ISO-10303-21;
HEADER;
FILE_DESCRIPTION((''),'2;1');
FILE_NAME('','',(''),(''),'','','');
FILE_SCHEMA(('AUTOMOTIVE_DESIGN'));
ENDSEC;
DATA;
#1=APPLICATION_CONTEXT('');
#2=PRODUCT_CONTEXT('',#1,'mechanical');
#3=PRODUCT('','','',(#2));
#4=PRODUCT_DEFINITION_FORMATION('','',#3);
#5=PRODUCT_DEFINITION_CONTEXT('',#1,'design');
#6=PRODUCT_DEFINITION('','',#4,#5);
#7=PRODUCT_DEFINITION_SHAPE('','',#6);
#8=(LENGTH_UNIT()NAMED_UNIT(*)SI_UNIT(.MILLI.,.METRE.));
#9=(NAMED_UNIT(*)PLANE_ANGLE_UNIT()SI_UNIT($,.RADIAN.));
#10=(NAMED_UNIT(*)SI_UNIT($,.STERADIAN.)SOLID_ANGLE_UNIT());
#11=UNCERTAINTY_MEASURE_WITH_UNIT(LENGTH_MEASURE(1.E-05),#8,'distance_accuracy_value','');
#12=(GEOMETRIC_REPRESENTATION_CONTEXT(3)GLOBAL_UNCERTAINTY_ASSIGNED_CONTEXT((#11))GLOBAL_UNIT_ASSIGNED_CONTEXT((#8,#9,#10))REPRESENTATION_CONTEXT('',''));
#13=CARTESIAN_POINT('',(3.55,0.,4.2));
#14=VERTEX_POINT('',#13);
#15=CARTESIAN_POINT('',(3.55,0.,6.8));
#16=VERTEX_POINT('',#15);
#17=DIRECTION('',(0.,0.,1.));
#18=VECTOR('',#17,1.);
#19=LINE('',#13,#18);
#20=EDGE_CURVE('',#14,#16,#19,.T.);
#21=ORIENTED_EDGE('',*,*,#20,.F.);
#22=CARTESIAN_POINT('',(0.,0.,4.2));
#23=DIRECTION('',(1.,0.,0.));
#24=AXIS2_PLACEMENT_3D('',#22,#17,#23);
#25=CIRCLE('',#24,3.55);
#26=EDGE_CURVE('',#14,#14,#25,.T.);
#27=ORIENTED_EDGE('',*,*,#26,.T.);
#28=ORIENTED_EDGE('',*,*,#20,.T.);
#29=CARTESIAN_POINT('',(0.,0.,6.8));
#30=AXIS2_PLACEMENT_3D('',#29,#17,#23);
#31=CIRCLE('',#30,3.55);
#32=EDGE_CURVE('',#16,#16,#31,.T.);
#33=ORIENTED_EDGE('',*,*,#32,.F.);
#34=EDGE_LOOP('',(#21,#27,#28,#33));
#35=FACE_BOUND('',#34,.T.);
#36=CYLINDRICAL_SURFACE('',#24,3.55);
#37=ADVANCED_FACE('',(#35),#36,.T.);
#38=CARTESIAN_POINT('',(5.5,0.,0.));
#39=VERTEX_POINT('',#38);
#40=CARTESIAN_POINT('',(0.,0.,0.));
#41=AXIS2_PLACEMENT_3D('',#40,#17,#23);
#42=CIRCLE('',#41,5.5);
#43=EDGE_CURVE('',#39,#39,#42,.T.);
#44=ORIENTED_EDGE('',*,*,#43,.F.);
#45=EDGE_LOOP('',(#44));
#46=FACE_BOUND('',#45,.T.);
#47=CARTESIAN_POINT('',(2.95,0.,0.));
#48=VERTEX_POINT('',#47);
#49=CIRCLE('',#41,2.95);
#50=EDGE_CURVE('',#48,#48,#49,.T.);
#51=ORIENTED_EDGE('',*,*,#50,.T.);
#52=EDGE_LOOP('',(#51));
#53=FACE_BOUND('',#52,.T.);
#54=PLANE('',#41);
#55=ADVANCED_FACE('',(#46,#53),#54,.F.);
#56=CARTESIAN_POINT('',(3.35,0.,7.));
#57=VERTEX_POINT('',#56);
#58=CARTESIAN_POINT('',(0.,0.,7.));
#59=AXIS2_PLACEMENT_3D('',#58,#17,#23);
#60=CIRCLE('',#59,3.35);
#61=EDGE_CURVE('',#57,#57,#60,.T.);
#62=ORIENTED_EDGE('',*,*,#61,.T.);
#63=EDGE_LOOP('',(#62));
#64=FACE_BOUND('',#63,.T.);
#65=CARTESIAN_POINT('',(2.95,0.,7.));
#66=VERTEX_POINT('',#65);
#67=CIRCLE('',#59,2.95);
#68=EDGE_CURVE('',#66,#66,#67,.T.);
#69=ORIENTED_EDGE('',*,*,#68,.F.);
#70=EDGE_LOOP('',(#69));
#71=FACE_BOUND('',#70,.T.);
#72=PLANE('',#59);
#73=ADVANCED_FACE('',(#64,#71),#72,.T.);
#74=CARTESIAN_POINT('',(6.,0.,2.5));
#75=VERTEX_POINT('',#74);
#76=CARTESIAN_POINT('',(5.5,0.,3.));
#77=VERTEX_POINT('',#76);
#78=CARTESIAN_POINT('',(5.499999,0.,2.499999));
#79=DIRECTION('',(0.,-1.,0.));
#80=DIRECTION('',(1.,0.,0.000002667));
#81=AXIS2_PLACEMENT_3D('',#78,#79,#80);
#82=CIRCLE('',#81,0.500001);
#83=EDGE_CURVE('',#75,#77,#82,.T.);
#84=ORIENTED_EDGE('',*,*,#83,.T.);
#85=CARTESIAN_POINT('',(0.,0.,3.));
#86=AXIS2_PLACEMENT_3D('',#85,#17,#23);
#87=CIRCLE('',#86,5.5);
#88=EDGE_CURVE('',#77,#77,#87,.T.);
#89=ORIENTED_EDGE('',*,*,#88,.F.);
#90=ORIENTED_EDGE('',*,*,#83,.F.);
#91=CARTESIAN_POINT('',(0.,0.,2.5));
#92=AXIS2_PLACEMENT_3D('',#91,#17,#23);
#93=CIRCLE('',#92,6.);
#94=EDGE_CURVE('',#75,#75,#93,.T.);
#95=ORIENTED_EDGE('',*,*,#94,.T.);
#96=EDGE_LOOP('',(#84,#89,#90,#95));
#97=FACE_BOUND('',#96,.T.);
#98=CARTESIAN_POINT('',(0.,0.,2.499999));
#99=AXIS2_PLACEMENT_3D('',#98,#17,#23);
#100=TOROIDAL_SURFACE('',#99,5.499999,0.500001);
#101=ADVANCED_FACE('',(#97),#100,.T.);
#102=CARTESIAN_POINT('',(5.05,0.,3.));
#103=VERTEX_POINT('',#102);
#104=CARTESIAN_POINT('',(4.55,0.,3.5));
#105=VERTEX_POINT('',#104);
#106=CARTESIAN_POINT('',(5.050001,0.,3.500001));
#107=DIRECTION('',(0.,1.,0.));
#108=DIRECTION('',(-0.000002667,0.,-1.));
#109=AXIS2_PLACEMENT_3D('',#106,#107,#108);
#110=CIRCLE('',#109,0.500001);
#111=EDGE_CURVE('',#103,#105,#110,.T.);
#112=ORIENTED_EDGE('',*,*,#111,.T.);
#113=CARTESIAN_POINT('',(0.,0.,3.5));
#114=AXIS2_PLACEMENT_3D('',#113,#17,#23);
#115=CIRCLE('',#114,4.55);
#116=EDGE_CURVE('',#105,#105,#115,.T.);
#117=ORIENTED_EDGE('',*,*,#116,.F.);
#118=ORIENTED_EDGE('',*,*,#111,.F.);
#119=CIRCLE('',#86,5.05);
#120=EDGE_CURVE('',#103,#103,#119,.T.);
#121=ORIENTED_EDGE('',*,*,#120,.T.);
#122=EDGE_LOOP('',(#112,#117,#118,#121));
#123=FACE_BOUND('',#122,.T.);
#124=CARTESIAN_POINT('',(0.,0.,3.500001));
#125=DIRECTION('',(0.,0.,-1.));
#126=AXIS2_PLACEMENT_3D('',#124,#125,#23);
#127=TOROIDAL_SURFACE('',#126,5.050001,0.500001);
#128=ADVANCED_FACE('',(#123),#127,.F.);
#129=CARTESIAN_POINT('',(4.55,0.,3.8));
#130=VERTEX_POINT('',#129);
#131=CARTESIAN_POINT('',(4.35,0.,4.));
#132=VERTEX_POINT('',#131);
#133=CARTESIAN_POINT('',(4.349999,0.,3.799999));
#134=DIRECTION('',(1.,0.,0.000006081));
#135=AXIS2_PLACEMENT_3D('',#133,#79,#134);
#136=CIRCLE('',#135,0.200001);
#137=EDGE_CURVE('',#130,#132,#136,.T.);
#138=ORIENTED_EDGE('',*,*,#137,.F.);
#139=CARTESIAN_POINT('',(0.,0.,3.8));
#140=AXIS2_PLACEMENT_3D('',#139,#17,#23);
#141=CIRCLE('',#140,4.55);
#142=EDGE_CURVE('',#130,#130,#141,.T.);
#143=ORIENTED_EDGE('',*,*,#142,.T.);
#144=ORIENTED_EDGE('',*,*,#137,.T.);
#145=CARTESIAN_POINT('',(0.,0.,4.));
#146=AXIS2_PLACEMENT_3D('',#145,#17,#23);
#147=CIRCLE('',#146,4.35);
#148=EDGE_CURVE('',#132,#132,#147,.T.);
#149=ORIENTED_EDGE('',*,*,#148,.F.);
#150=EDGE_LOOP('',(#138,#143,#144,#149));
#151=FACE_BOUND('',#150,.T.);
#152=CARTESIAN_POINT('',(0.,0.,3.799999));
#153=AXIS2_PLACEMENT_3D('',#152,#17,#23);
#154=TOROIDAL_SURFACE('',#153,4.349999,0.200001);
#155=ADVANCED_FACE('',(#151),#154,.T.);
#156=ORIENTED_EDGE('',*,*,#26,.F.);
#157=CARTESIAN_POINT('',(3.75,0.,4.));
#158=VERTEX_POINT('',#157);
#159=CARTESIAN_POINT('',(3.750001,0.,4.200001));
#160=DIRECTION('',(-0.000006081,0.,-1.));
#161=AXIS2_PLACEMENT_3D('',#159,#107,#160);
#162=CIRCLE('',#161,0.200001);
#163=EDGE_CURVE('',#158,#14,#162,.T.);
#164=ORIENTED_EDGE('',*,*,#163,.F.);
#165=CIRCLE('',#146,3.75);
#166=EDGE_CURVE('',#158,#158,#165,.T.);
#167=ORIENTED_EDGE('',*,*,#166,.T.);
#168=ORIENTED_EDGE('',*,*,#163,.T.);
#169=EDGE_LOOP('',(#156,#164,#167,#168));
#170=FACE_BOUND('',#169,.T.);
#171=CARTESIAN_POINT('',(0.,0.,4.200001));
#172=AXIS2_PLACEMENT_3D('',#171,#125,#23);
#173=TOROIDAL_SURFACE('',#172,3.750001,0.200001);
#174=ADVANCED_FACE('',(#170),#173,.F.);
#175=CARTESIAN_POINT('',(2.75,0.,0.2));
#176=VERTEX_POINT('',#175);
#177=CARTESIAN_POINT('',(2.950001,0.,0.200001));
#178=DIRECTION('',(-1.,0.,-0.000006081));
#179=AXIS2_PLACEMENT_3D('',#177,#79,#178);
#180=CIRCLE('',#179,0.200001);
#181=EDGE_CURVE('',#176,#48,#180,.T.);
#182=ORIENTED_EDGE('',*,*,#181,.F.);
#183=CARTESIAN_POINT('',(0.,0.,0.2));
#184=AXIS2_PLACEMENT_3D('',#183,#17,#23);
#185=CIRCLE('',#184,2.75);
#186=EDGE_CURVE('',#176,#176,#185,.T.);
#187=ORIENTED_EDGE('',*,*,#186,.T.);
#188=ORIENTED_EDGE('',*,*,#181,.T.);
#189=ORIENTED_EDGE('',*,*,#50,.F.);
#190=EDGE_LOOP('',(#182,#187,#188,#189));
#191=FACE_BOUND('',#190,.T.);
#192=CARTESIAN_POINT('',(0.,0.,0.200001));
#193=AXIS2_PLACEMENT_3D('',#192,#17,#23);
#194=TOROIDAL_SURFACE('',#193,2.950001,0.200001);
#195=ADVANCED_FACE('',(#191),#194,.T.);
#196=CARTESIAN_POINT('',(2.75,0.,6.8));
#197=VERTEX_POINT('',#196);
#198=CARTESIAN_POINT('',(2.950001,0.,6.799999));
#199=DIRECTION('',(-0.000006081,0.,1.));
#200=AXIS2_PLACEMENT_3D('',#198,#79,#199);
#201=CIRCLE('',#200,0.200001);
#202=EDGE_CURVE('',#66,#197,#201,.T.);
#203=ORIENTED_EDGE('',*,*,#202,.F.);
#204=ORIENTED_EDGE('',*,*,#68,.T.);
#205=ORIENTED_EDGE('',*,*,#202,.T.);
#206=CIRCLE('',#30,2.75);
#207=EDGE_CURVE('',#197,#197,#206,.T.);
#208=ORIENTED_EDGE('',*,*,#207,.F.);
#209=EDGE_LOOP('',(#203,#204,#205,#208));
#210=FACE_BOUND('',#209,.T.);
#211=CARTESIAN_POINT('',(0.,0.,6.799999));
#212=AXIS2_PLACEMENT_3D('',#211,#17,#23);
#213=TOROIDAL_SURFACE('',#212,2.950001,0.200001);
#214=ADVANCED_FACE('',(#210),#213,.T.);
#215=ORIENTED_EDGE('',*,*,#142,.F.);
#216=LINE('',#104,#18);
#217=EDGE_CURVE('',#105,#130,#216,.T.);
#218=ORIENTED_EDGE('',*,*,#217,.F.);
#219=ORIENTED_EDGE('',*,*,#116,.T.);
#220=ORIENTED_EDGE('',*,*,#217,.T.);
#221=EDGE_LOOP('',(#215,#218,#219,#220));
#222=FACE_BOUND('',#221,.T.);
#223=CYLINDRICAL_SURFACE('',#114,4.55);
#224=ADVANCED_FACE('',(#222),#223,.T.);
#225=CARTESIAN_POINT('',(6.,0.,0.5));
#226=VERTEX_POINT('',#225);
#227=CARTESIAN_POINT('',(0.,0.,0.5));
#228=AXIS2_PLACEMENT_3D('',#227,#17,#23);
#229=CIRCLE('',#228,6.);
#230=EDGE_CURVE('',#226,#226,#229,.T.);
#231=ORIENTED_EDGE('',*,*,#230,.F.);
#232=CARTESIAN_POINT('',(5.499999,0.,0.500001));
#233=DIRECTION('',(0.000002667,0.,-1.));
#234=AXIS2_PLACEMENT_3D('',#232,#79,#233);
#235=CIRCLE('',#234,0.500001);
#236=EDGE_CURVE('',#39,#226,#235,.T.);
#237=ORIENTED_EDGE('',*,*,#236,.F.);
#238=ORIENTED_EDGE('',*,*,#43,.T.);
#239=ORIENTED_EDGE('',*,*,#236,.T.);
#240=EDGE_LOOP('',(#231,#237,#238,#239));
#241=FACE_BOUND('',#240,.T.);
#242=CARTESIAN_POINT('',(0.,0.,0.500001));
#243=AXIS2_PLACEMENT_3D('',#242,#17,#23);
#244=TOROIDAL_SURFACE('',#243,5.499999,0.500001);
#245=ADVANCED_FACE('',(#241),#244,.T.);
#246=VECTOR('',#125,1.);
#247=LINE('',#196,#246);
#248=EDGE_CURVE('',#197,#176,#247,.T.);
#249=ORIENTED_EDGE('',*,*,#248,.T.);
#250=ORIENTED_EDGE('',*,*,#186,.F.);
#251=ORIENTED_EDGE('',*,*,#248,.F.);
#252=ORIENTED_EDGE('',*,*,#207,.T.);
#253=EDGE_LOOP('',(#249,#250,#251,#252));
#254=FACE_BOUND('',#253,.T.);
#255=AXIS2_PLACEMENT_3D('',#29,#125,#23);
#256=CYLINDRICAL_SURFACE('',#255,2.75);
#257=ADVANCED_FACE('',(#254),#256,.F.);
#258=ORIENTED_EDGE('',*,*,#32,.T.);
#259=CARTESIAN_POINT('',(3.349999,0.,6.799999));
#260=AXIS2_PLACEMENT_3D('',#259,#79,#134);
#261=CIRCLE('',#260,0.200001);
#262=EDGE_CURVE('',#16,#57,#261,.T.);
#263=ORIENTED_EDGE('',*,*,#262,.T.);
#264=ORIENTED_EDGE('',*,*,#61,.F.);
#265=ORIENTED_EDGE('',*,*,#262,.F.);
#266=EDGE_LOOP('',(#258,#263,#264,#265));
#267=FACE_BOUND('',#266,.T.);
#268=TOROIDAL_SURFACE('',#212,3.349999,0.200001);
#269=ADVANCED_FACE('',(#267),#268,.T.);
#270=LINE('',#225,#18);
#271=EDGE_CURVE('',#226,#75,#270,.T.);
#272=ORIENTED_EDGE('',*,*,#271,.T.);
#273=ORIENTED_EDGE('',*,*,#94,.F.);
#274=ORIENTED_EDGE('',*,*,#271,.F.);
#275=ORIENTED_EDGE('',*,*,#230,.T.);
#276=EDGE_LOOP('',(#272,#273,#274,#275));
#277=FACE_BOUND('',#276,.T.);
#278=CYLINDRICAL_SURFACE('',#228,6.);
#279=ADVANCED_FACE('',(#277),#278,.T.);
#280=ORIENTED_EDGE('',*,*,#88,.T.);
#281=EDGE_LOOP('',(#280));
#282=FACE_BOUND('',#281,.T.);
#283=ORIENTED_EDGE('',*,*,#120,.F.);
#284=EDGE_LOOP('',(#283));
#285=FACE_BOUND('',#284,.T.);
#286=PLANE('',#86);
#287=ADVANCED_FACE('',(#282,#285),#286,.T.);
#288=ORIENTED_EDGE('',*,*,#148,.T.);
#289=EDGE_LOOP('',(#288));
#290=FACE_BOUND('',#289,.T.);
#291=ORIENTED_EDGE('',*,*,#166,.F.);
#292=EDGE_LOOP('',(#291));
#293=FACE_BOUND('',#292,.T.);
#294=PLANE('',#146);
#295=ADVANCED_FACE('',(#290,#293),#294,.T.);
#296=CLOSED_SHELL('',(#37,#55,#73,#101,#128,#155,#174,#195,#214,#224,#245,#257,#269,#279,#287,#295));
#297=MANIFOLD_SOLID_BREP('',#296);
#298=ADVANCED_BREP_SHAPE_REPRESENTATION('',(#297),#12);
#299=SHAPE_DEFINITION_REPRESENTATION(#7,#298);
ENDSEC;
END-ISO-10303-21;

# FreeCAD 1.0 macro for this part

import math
import FreeCAD as App
import Part
import Sketcher

V = App.Vector
Q = App.Units.Quantity

doc = App.newDocument("Part")
body = doc.addObject("PartDesign::Body", "Body")

# Sketch on XZ plane
sketch1 = body.newObject("Sketcher::SketchObject", "Sketch")
sketch1.AttachmentSupport = (doc.getObject("XZ_Plane"), [""])
sketch1.MapMode = "FlatFace"
sketch1.addGeometry(Part.LineSegment(V(2.95, 0, 0), V(5.5, 0, 0)), False)
sketch1.addGeometry(Part.ArcOfCircle(Part.Circle(V(5.499999, 0.500001, 0), V(0, 0, 1), 0.500001), math.radians(-89.999847), math.radians(-0.000153)), False)
sketch1.addGeometry(Part.LineSegment(V(6, 0.5, 0), V(6, 2.5, 0)), False)
sketch1.addGeometry(Part.ArcOfCircle(Part.Circle(V(5.499999, 2.499999, 0), V(0, 0, 1), 0.500001), math.radians(0.000153), math.radians(89.999847)), False)
sketch1.addGeometry(Part.LineSegment(V(5.5, 3, 0), V(5.05, 3, 0)), False)
sketch1.addGeometry(Part.ArcOfCircle(Part.Circle(V(5.050001, 3.500001, 0), V(0, 0, 1), 0.500001), math.radians(-179.999847), math.radians(-90.000153)), False)
sketch1.addGeometry(Part.LineSegment(V(4.55, 3.5, 0), V(4.55, 3.8, 0)), False)
sketch1.addGeometry(Part.ArcOfCircle(Part.Circle(V(4.349999, 3.799999, 0), V(0, 0, 1), 0.200001), math.radians(0.000348), math.radians(89.999652)), False)
sketch1.addGeometry(Part.LineSegment(V(4.35, 4, 0), V(3.75, 4, 0)), False)
sketch1.addGeometry(Part.ArcOfCircle(Part.Circle(V(3.750001, 4.200001, 0), V(0, 0, 1), 0.200001), math.radians(-179.999652), math.radians(-90.000348)), False)
sketch1.addGeometry(Part.LineSegment(V(3.55, 4.2, 0), V(3.55, 6.8, 0)), False)
sketch1.addGeometry(Part.ArcOfCircle(Part.Circle(V(3.349999, 6.799999, 0), V(0, 0, 1), 0.200001), math.radians(0.000348), math.radians(89.999652)), False)
sketch1.addGeometry(Part.LineSegment(V(3.35, 7, 0), V(2.95, 7, 0)), False)
sketch1.addGeometry(Part.ArcOfCircle(Part.Circle(V(2.950001, 6.799999, 0), V(0, 0, 1), 0.200001), math.radians(90.000348), math.radians(179.999652)), False)
sketch1.addGeometry(Part.LineSegment(V(2.75, 6.8, 0), V(2.75, 0.2, 0)), False)
sketch1.addGeometry(Part.ArcOfCircle(Part.Circle(V(2.950001, 0.200001, 0), V(0, 0, 1), 0.200001), math.radians(-179.999652), math.radians(-90.000348)), False)
sketch1.addConstraint(Sketcher.Constraint("Coincident", 0, 2, 1, 1))
sketch1.addConstraint(Sketcher.Constraint("Coincident", 1, 2, 2, 1))
sketch1.addConstraint(Sketcher.Constraint("Coincident", 2, 2, 3, 1))
sketch1.addConstraint(Sketcher.Constraint("Coincident", 3, 2, 4, 1))
sketch1.addConstraint(Sketcher.Constraint("Coincident", 4, 2, 5, 2))
sketch1.addConstraint(Sketcher.Constraint("Coincident", 5, 1, 6, 1))
sketch1.addConstraint(Sketcher.Constraint("Coincident", 6, 2, 7, 1))
sketch1.addConstraint(Sketcher.Constraint("Coincident", 7, 2, 8, 1))
sketch1.addConstraint(Sketcher.Constraint("Coincident", 8, 2, 9, 2))
sketch1.addConstraint(Sketcher.Constraint("Coincident", 9, 1, 10, 1))
sketch1.addConstraint(Sketcher.Constraint("Coincident", 10, 2, 11, 1))
sketch1.addConstraint(Sketcher.Constraint("Coincident", 11, 2, 12, 1))
sketch1.addConstraint(Sketcher.Constraint("Coincident", 12, 2, 13, 1))
sketch1.addConstraint(Sketcher.Constraint("Coincident", 13, 2, 14, 1))
sketch1.addConstraint(Sketcher.Constraint("Coincident", 14, 2, 15, 1))
sketch1.addConstraint(Sketcher.Constraint("Coincident", 15, 2, 0, 1))
sketch1.addConstraint(Sketcher.Constraint("Horizontal", 0))
sketch1.addConstraint(Sketcher.Constraint("Vertical", 2))
sketch1.addConstraint(Sketcher.Constraint("Horizontal", 4))
sketch1.addConstraint(Sketcher.Constraint("Vertical", 6))
sketch1.addConstraint(Sketcher.Constraint("Horizontal", 8))
sketch1.addConstraint(Sketcher.Constraint("Vertical", 10))
sketch1.addConstraint(Sketcher.Constraint("Horizontal", 12))
sketch1.addConstraint(Sketcher.Constraint("Vertical", 14))
sketch1.addConstraint(Sketcher.Constraint("Equal", 1, 3))
sketch1.addConstraint(Sketcher.Constraint("Equal", 3, 5))
sketch1.addConstraint(Sketcher.Constraint("Equal", 7, 9))
sketch1.addConstraint(Sketcher.Constraint("Equal", 9, 11))
sketch1.addConstraint(Sketcher.Constraint("Equal", 11, 13))
sketch1.addConstraint(Sketcher.Constraint("Equal", 13, 15))
sketch1.addConstraint(Sketcher.Constraint("PointOnObject", 0, 2, -1))
sketch1.addConstraint(Sketcher.Constraint("Horizontal", 3, 3, 2, 2))
sketch1.addConstraint(Sketcher.Constraint("Horizontal", 7, 3, 6, 2))
sketch1.addConstraint(Sketcher.Constraint("Horizontal", 13, 3, 10, 2))
sketch1.addConstraint(Sketcher.Constraint("Horizontal", 10, 2, 13, 2))
sketch1.addConstraint(Sketcher.Constraint("Horizontal", 15, 3, 14, 2))
sketch1.addConstraint(Sketcher.Constraint("Vertical", 3, 3, 0, 2))
sketch1.addConstraint(Sketcher.Constraint("Vertical", 0, 2, 3, 2))
sketch1.addConstraint(Sketcher.Constraint("Vertical", 5, 3, 4, 2))
sketch1.addConstraint(Sketcher.Constraint("Vertical", 9, 3, 8, 2))
sketch1.addConstraint(Sketcher.Constraint("Vertical", 15, 3, 12, 2))
sketch1.addConstraint(Sketcher.Constraint("Vertical", 12, 2, 15, 2))
sketch1.addConstraint(Sketcher.Constraint("Radius", 1, Q("0.500001 mm")))
sketch1.addConstraint(Sketcher.Constraint("Radius", 7, Q("0.200001 mm")))
sketch1.addConstraint(Sketcher.Constraint("DistanceY", 2, 1, 2, 2, Q("2 mm")))
sketch1.addConstraint(Sketcher.Constraint("DistanceX", 8, 2, 8, 1, Q("0.6 mm")))
sketch1.addConstraint(Sketcher.Constraint("DistanceX", 12, 2, 12, 1, Q("0.4 mm")))
sketch1.addConstraint(Sketcher.Constraint("DistanceY", 6, 1, 6, 2, Q("0.3 mm")))
sketch1.addConstraint(Sketcher.Constraint("DistanceY", 10, 1, 10, 2, Q("2.6 mm")))
sketch1.addConstraint(Sketcher.Constraint("DistanceY", 14, 2, 14, 1, Q("6.6 mm")))
sketch1.addConstraint(Sketcher.Constraint("DistanceX", -1, 1, 1, 2, Q("6 mm")))
sketch1.addConstraint(Sketcher.Constraint("DistanceY", -1, 1, 3, 2, Q("3 mm")))
sketch1.addConstraint(Sketcher.Constraint("DistanceY", -1, 1, 7, 2, Q("4 mm")))
sketch1.addConstraint(Sketcher.Constraint("DistanceX", 11, 3, 7, 3, Q("1 mm")))
sketch1.addConstraint(Sketcher.Constraint("DistanceX", 0, 1, 0, 2, Q("2.55 mm")))
sketch1.addConstraint(Sketcher.Constraint("DistanceX", 4, 2, 4, 1, Q("0.45 mm")))
revolution = body.newObject("PartDesign::Revolution", "Revolution")
revolution.Profile = sketch1
revolution.ReferenceAxis = (sketch1, ["V_Axis"])
revolution.Angle = 360

doc.recompute()
